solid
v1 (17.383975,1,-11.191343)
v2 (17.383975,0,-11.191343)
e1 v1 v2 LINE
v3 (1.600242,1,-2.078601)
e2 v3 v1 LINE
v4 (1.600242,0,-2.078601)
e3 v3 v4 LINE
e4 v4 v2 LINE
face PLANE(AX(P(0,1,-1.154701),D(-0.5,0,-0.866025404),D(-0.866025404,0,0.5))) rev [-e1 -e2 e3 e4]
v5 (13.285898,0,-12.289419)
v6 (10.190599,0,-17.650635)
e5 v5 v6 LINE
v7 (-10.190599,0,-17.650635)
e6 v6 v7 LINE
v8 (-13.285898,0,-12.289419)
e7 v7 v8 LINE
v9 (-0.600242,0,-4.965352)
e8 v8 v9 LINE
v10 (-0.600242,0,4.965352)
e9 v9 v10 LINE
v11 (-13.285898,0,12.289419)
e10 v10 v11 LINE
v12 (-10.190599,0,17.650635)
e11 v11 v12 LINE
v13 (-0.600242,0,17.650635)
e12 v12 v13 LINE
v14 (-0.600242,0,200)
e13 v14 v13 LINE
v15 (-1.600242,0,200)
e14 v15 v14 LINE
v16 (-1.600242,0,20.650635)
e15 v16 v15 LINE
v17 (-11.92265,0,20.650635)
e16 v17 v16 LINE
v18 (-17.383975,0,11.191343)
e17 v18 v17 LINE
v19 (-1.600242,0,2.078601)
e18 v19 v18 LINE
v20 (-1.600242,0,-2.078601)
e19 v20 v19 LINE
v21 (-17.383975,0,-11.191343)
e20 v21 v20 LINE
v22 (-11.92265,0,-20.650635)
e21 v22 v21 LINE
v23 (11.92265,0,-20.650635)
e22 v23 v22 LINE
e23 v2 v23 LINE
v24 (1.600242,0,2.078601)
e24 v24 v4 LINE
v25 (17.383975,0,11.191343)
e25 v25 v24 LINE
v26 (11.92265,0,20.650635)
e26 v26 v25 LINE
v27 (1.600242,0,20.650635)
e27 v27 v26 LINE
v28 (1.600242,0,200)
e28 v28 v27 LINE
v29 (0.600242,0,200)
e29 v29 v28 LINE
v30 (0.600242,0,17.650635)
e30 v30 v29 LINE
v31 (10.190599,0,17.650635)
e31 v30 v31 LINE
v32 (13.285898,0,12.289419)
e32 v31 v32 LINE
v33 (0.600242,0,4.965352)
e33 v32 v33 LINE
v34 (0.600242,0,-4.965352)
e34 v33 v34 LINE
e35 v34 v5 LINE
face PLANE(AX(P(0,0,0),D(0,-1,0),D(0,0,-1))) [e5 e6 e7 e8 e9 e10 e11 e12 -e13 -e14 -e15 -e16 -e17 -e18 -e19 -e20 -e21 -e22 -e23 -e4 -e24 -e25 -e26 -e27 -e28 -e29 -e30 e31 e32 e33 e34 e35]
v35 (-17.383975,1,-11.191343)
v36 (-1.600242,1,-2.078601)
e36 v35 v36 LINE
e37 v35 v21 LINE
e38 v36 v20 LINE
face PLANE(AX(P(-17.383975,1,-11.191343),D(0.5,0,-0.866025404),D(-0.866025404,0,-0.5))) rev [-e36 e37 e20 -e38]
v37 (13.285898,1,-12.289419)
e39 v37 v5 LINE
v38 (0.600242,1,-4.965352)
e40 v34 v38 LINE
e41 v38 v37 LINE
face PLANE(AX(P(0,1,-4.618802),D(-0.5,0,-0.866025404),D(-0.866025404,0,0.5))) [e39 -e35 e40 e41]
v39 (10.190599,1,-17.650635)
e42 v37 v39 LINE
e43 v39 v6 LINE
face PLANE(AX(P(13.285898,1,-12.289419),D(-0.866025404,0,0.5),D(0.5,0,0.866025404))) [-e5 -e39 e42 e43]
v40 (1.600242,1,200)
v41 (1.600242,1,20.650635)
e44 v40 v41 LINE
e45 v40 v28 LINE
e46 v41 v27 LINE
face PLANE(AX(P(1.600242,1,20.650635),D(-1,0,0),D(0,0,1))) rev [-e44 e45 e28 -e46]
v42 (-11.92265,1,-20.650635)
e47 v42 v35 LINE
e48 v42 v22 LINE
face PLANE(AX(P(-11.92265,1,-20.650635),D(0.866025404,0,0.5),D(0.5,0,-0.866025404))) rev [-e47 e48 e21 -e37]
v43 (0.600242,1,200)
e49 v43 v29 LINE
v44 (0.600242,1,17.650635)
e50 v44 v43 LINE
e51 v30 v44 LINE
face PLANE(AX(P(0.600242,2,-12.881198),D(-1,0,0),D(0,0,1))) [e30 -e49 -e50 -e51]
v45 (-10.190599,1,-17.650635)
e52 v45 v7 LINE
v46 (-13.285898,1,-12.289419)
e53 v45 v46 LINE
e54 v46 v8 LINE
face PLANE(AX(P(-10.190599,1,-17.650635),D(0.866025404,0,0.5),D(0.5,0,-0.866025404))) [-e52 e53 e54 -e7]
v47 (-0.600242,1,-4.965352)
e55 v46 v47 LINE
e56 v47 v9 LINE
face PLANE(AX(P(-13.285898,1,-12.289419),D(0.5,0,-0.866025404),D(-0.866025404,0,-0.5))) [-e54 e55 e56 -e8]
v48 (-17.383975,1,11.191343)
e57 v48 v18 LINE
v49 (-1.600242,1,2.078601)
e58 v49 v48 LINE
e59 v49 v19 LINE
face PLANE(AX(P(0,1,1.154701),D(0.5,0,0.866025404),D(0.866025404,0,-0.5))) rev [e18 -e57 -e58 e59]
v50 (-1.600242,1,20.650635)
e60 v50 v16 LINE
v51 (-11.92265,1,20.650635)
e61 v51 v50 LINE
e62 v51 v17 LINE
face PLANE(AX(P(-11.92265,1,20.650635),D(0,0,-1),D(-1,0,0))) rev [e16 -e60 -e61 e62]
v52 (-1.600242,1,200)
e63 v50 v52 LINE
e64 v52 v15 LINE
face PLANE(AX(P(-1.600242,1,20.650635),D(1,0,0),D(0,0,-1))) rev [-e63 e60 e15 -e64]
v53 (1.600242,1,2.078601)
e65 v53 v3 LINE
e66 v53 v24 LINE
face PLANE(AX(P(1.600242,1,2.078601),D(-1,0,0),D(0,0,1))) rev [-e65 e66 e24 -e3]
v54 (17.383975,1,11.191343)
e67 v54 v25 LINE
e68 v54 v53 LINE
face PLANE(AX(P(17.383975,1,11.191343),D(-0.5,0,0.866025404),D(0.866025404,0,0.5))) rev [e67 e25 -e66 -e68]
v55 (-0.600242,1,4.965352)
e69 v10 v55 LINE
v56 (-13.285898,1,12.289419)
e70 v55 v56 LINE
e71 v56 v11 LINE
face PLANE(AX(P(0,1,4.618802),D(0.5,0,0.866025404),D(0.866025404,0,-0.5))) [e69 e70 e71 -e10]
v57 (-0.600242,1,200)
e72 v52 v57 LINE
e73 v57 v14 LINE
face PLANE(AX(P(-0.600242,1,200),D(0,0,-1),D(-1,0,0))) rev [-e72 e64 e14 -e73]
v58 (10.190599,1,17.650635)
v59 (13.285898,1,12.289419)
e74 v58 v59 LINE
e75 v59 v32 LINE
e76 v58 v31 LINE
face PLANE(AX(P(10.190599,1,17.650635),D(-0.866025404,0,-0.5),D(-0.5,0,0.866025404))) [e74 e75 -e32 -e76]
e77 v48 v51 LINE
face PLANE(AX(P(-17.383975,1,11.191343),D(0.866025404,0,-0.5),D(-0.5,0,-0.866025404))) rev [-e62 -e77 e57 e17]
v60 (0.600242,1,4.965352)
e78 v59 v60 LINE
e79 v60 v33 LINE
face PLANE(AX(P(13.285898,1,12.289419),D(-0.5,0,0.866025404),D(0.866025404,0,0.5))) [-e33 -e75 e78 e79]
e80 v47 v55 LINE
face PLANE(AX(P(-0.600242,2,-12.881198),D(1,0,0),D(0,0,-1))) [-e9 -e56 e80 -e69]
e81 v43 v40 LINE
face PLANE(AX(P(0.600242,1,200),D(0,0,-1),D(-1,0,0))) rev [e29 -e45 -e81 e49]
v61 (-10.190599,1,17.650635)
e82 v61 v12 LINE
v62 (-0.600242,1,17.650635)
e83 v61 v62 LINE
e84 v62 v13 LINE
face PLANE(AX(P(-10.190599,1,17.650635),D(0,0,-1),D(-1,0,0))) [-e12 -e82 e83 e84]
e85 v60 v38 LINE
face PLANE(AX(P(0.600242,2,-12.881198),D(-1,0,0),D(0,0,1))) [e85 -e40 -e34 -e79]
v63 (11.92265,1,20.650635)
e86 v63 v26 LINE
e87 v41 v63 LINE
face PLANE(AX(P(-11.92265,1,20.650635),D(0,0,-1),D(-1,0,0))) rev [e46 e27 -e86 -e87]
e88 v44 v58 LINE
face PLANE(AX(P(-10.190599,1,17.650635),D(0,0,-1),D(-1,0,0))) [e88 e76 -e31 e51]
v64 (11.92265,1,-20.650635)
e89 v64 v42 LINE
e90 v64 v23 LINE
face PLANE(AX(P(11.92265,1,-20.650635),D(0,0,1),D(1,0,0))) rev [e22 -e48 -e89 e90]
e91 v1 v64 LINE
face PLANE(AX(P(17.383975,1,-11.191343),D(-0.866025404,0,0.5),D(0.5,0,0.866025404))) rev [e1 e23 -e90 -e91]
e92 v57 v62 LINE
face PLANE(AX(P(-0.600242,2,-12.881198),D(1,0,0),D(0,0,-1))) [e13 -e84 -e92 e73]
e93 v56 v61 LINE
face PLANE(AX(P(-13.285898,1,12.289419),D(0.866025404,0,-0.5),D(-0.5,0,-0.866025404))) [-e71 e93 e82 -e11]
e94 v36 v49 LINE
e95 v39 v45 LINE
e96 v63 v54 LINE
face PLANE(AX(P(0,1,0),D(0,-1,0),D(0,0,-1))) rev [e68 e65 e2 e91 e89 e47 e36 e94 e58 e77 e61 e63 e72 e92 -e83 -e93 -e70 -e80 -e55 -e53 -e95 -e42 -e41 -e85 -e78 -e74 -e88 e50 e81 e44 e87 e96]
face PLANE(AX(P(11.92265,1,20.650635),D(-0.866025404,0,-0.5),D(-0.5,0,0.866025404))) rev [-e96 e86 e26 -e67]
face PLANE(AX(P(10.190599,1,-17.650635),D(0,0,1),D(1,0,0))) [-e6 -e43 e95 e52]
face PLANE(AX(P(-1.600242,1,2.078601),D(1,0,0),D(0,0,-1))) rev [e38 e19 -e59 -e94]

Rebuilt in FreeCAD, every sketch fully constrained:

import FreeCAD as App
import Part
import Sketcher
Q = App.Units.Quantity


def add_polygon(sketch, points):
    """Adds a closed chain of lines whose ends are joined by coincident constraints."""
    first, n = sketch.GeometryCount, len(points)
    for a, b in zip(points, points[1:] + points[:1]):
        sketch.addGeometry(Part.LineSegment(App.Vector(*a, 0), App.Vector(*b, 0)), False)
    for i in range(n):
        sketch.addConstraint(Sketcher.Constraint("Coincident", first + i, 2, first + (i + 1) % n, 1))

doc = App.newDocument("Part")
body = doc.addObject("PartDesign::Body", "Body")

sketch1 = doc.addObject("Sketcher::SketchObject", "Sketch")
body.addObject(sketch1)
sketch1.AttachmentSupport = (doc.XZ_Plane, [""])
sketch1.MapMode = "FlatFace"
add_polygon(sketch1, [(11.92265, -20.650635), (-11.92265, -20.650635), (-17.383975, -11.191343), (0, -1.154701), (17.383975, -11.191343)])
add_polygon(sketch1, [(-10.190599, -17.650635), (10.190599, -17.650635), (13.285898, -12.289419), (0, -4.618802), (-13.285898, -12.289419)])
sketch1.addConstraint([
    Sketcher.Constraint("Horizontal", 0),
    Sketcher.Constraint("Horizontal", 5),
    Sketcher.Constraint("Symmetric", 1, 2, 3, 2, -2),
    Sketcher.Constraint("Symmetric", 6, 2, 8, 2, -2),
    Sketcher.Constraint("PointOnObject", 2, 2, -2),
    Sketcher.Constraint("PointOnObject", 7, 2, -2),
    Sketcher.Constraint("Perpendicular", 1, 2),
    Sketcher.Constraint("Perpendicular", 3, 4),
    Sketcher.Constraint("Parallel", 4, 6),
    Sketcher.Constraint("Perpendicular", 6, 7),
    Sketcher.Constraint("Perpendicular", 8, 9),
    Sketcher.Constraint("Angle", 1, Q("120 deg")),
    Sketcher.Constraint("DistanceY", 4, 2, 5, 2, Q("3 mm")),
    Sketcher.Constraint("DistanceX", 0, 2, 0, 1, Q("23.845299 mm")),
    Sketcher.Constraint("Distance", 6, Q("6.190599 mm")),
    Sketcher.Constraint("DistanceY", 2, 2, -1, 1, Q("1.154701 mm")),
    Sketcher.Constraint("DistanceX", -1, 1, 5, 2, Q("10.190599 mm")),
    Sketcher.Constraint("DistanceY", 7, 2, 2, 2, Q("3.464102 mm")),
])
pad1 = doc.addObject("PartDesign::Pad", "Pad")
body.addObject(pad1)
pad1.Profile = sketch1
pad1.Length = 1
pad1.Reversed = True
body2 = doc.addObject("PartDesign::Body", "Body001")

sketch2 = doc.addObject("Sketcher::SketchObject", "Sketch001")
body2.addObject(sketch2)
sketch2.AttachmentSupport = (doc.getObject("XZ_Plane001"), [""])
sketch2.MapMode = "FlatFace"
add_polygon(sketch2, [(0, 1.154701), (-17.383975, 11.191343), (-11.92265, 20.650635), (11.92265, 20.650635), (17.383975, 11.191343)])
add_polygon(sketch2, [(-13.285898, 12.289419), (0, 4.618802), (13.285898, 12.289419), (10.190599, 17.650635), (-10.190599, 17.650635)])
sketch2.addConstraint([
    Sketcher.Constraint("Horizontal", 2),
    Sketcher.Constraint("Horizontal", 8),
    Sketcher.Constraint("Symmetric", 0, 2, 3, 2, -2),
    Sketcher.Constraint("Symmetric", 6, 2, 9, 2, -2),
    Sketcher.Constraint("PointOnObject", 4, 2, -2),
    Sketcher.Constraint("PointOnObject", 5, 2, -2),
    Sketcher.Constraint("Perpendicular", 0, 1),
    Sketcher.Constraint("Perpendicular", 3, 4),
    Sketcher.Constraint("Perpendicular", 1, 5),
    Sketcher.Constraint("Perpendicular", 6, 7),
    Sketcher.Constraint("Perpendicular", 5, 9),
    Sketcher.Constraint("Angle", 0, Q("150 deg")),
    Sketcher.Constraint("DistanceY", 7, 2, 2, 2, Q("3 mm")),
    Sketcher.Constraint("DistanceX", 2, 1, 2, 2, Q("23.845299 mm")),
    Sketcher.Constraint("Distance", 7, Q("6.190599 mm")),
    Sketcher.Constraint("DistanceY", -1, 1, 4, 2, Q("1.154701 mm")),
    Sketcher.Constraint("DistanceX", -1, 1, 6, 2, Q("13.285898 mm")),
    Sketcher.Constraint("DistanceY", 4, 2, 5, 2, Q("3.464102 mm")),
])
pad2 = doc.addObject("PartDesign::Pad", "Pad001")
body2.addObject(pad2)
pad2.Profile = sketch2
pad2.Length = 1
pad2.Reversed = True
body3 = doc.addObject("PartDesign::Body", "Body002")

sketch3 = doc.addObject("Sketcher::SketchObject", "Sketch002")
body3.addObject(sketch3)
sketch3.AttachmentSupport = (doc.getObject("XZ_Plane002"), [""])
sketch3.MapMode = "FlatFace"
add_polygon(sketch3, [(-0.600242, -12.881198), (-0.600242, 22.118802), (0.600242, 22.118802), (0.600242, -12.881198)])
sketch3.addConstraint([
    Sketcher.Constraint("Vertical", 0),
    Sketcher.Constraint("Horizontal", 1),
    Sketcher.Constraint("Vertical", 2),
    Sketcher.Constraint("Horizontal", 3),
    Sketcher.Constraint("DistanceY", 0, 1, 0, 2, Q("35 mm")),
    Sketcher.Constraint("DistanceX", 1, 1, 1, 2, Q("1.200484 mm")),
    Sketcher.Constraint("DistanceX", 0, 2, -1, 1, Q("0.600242 mm")),
    Sketcher.Constraint("DistanceY", -1, 1, 0, 2, Q("22.118802 mm")),
])
pad3 = doc.addObject("PartDesign::Pad", "Pad002")
body3.addObject(pad3)
pad3.Profile = sketch3
pad3.Type = "TwoLengths"
pad3.Length = 2
pad3.Length2 = 2
pad3.Reversed = True
doc.recompute()

body4 = doc.addObject("PartDesign::Body", "Body003")
body4.BaseFeature = body3
boolean = doc.addObject("PartDesign::Boolean", "Boolean")
body.addObject(boolean)
boolean.Type = "Cut"
boolean.addObjects([body4])
doc.recompute()
body2.AllowCompound = True
doc.recompute()

boolean2 = doc.addObject("PartDesign::Boolean", "Boolean001")
body2.addObject(boolean2)
boolean2.Type = "Cut"
boolean2.addObjects([body3])
body.AllowCompound = True
doc.recompute()

boolean3 = doc.addObject("PartDesign::Boolean", "Boolean002")
body.addObject(boolean3)
boolean3.Type = "Fuse"
boolean3.addObjects([body2])

sketch4 = doc.addObject("Sketcher::SketchObject", "Sketch003")
body.addObject(sketch4)
sketch4.AttachmentSupport = (doc.XZ_Plane, [""])
sketch4.MapMode = "FlatFace"
add_polygon(sketch4, [(-1.600242, 20.650635), (-1.600242, 200), (-0.600242, 200), (-0.600242, 20.650635)])
add_polygon(sketch4, [(0.600242, 20.650635), (0.600242, 200), (1.600242, 200), (1.600242, 20.650635)])
add_polygon(sketch4, [(-0.600242, 1.50125), (-0.600242, -1.50125), (-1.600242, -2.078601), (-1.600242, 2.078601)])
add_polygon(sketch4, [(0.600242, -1.50125), (0.600242, 1.50125), (1.600242, 2.078601), (1.600242, -2.078601)])
sketch4.addConstraint([
    Sketcher.Constraint("Vertical", 0),
    Sketcher.Constraint("Horizontal", 1),
    Sketcher.Constraint("Vertical", 2),
    Sketcher.Constraint("Horizontal", 3),
    Sketcher.Constraint("Vertical", 4),
    Sketcher.Constraint("Horizontal", 5),
    Sketcher.Constraint("Vertical", 6),
    Sketcher.Constraint("Horizontal", 7),
    Sketcher.Constraint("Vertical", 8),
    Sketcher.Constraint("Vertical", 10),
    Sketcher.Constraint("Vertical", 12),
    Sketcher.Constraint("Vertical", 14),
    Sketcher.Constraint("Symmetric", 8, 2, 12, 2, -1, 1),
    Sketcher.Constraint("Symmetric", 9, 2, 13, 2, -1, 1),
    Sketcher.Constraint("Symmetric", 1, 2, 4, 2, -2),
    Sketcher.Constraint("Symmetric", 3, 2, 6, 2, -2),
    Sketcher.Constraint("Parallel", 11, 15),
    Sketcher.Constraint("Horizontal", 11, 2, 12, 2),
    Sketcher.Constraint("Horizontal", 10, 2, 13, 2),
    Sketcher.Constraint("Horizontal", 9, 2, 14, 2),
    Sketcher.Constraint("Vertical", 2, 2, 8, 2),
    Sketcher.Constraint("Vertical", 3, 2, 9, 2),
    Sketcher.Constraint("DistanceX", 1, 1, 1, 2, Q("1 mm")),
    Sketcher.Constraint("Angle", 9, Q("-150 deg")),
    Sketcher.Constraint("DistanceY", -1, 1, 0, 2, Q("200 mm")),
    Sketcher.Constraint("DistanceY", 8, 2, 8, 1, Q("3.002501 mm")),
    Sketcher.Constraint("DistanceY", 0, 1, 0, 2, Q("179.349365 mm")),
    Sketcher.Constraint("DistanceX", 0, 2, -1, 1, Q("1.600242 mm")),
])
pad4 = doc.addObject("PartDesign::Pad", "Pad003")
body.addObject(pad4)
pad4.Profile = sketch4
pad4.Length = 1
pad4.Reversed = True

doc.recompute()
